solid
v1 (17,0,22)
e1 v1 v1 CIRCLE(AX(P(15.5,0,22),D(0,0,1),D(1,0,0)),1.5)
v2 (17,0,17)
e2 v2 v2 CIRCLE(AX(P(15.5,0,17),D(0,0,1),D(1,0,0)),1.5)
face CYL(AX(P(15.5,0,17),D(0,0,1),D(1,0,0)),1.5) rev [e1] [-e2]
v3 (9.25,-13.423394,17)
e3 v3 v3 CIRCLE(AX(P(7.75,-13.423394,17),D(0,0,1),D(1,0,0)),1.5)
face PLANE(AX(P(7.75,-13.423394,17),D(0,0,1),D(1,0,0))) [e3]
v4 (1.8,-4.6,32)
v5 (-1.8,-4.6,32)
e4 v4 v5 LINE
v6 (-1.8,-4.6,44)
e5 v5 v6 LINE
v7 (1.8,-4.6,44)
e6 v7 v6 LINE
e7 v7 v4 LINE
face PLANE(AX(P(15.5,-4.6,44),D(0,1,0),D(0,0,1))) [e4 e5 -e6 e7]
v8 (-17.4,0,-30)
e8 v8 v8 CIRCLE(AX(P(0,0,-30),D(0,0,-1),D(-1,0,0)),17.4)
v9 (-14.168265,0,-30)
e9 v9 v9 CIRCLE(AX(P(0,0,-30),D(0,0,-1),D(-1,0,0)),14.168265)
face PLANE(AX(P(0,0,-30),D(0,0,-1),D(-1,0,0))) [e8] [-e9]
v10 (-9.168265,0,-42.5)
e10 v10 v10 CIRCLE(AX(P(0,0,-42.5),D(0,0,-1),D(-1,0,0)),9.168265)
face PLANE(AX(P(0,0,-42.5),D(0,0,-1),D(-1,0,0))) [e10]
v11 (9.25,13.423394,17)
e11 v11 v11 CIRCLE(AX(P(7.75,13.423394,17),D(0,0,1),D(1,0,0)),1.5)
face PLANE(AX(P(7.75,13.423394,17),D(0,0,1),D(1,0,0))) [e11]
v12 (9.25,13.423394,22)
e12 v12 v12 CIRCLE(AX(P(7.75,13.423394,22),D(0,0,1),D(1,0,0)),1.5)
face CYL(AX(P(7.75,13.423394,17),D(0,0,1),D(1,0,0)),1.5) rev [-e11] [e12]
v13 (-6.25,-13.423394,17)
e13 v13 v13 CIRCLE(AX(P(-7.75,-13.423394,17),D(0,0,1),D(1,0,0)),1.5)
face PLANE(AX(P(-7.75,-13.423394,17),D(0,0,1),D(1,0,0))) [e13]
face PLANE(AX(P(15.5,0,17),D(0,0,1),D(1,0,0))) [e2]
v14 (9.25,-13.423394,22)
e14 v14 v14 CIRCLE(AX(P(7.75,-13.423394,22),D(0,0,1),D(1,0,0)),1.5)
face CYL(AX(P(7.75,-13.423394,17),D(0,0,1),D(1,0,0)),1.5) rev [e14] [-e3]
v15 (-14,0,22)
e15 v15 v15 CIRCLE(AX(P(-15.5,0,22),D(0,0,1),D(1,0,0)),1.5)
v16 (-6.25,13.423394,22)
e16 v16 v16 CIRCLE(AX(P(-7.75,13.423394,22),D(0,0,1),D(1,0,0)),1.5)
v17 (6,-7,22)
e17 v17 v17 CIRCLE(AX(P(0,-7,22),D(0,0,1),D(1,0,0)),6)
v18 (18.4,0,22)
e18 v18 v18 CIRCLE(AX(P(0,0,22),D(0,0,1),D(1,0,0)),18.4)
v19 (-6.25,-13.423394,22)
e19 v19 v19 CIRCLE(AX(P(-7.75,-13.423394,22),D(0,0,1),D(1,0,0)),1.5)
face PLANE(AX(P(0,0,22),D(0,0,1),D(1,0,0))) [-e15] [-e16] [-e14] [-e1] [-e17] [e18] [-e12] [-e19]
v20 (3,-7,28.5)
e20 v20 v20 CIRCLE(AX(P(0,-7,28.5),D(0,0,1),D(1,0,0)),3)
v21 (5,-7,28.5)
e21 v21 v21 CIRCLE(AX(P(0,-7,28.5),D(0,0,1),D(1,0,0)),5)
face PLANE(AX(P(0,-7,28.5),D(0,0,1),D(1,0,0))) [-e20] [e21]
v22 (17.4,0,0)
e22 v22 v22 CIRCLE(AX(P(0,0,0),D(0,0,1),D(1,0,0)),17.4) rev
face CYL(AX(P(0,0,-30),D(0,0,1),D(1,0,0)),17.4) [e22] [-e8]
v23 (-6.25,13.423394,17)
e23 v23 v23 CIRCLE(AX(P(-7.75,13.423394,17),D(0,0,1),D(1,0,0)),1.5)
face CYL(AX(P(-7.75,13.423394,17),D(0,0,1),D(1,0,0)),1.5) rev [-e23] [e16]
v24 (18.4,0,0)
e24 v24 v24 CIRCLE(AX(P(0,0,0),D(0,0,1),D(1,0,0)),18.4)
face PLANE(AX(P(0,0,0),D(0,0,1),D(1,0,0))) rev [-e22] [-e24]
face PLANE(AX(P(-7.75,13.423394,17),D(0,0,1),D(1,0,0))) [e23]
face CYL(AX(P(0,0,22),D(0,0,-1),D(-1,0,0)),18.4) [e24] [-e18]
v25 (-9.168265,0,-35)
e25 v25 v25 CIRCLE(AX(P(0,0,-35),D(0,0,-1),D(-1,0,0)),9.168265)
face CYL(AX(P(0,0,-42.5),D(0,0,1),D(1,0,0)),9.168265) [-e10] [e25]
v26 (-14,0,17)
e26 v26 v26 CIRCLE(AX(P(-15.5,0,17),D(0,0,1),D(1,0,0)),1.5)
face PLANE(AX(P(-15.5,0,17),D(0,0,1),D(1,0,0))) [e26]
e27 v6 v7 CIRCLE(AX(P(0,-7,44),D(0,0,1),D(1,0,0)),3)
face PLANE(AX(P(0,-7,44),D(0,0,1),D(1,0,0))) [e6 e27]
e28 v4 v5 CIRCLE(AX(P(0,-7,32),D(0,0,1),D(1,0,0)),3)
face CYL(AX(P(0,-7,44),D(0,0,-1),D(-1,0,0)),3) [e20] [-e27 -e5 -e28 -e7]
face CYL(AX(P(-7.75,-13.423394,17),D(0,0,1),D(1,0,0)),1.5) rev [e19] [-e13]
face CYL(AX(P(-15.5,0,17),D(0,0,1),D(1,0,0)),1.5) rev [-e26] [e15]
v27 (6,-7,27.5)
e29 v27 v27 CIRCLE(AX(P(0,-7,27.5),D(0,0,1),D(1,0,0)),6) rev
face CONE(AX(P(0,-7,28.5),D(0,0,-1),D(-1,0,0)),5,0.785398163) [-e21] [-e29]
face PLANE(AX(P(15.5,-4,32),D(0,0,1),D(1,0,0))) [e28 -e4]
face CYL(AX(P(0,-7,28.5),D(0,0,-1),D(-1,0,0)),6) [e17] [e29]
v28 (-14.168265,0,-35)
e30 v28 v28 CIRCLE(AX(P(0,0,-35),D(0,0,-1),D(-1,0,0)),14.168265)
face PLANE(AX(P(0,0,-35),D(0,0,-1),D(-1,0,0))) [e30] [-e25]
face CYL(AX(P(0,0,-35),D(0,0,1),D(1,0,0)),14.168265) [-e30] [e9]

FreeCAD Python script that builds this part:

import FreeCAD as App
import Part
import Sketcher
Q = App.Units.Quantity


def edges_at(feature, points):
    """Names of the edges that pass closest to the given points."""
    edges = feature.Shape.Edges
    near = lambda p: min(range(len(edges)), key=lambda i: edges[i].distToShape(Part.Vertex(*p))[0])
    return sorted({f"Edge{near(p) + 1}" for p in points})


def add_polygon(sketch, points):
    """Adds a closed chain of lines whose ends are joined by coincident constraints."""
    first, n = sketch.GeometryCount, len(points)
    for a, b in zip(points, points[1:] + points[:1]):
        sketch.addGeometry(Part.LineSegment(App.Vector(*a, 0), App.Vector(*b, 0)), False)
    for i in range(n):
        sketch.addConstraint(Sketcher.Constraint("Coincident", first + i, 2, first + (i + 1) % n, 1))

doc = App.newDocument("Part")
body = doc.addObject("PartDesign::Body", "Body")

sketch1 = body.newObject("Sketcher::SketchObject", "Sketch")
sketch1.AttachmentSupport = (doc.getObject("XY_Plane"), [""])
sketch1.MapMode = "FlatFace"
sketch1.addGeometry(Part.Circle(App.Vector(0, 0, 0), App.Vector(0, 0, 1), 18), False)
sketch1.addConstraint([
    Sketcher.Constraint("Coincident", 0, 3, -1, 1),
    Sketcher.Constraint("Diameter", 0, Q("36.8 mm")),
])
pad1 = body.newObject("PartDesign::Pad", "Pad")
pad1.Profile = sketch1
pad1.Length = 22

sketch2 = body.newObject("Sketcher::SketchObject", "Sketch001")
sketch2.AttachmentSupport = (doc.getObject("XY_Plane"), [""])
sketch2.MapMode = "FlatFace"
sketch2.addGeometry(Part.Circle(App.Vector(0, 0, 0), App.Vector(0, 0, 1), 17), False)
sketch2.addConstraint([
    Sketcher.Constraint("Coincident", 0, 3, -1, 1),
    Sketcher.Constraint("Diameter", 0, Q("34.8 mm")),
])
pad2 = body.newObject("PartDesign::Pad", "Pad001")
pad2.Profile = sketch2
pad2.Length = 30
pad2.Reversed = True

sketch3 = body.newObject("Sketcher::SketchObject", "Sketch002")
sketch3.AttachmentSupport = (doc.getObject("XY_Plane"), [""])
sketch3.MapMode = "FlatFace"
sketch3.AttachmentOffset = App.Placement(App.Vector(0, 0, 22), App.Rotation())
sketch3.addGeometry(Part.Circle(App.Vector(0, -7, 0), App.Vector(0, 0, 1), 6), False)
sketch3.addConstraint([
    Sketcher.Constraint("PointOnObject", 0, 3, -2),
    Sketcher.Constraint("Diameter", 0, Q("12 mm")),
    Sketcher.Constraint("DistanceY", 0, 3, -1, 1, Q("7 mm")),
])
pad3 = body.newObject("PartDesign::Pad", "Pad002")
pad3.Profile = sketch3
pad3.Length = 6.5
doc.recompute()

chamfer = body.newObject("PartDesign::Chamfer", "Chamfer")
chamfer.Base = (pad3, edges_at(pad3, [(-6, -7, 28.5)]))
chamfer.Size = 1

sketch4 = body.newObject("Sketcher::SketchObject", "Sketch003")
sketch4.AttachmentSupport = (doc.getObject("XY_Plane"), [""])
sketch4.MapMode = "FlatFace"
sketch4.AttachmentOffset = App.Placement(App.Vector(0, 0, 28.5), App.Rotation())
sketch4.addGeometry(Part.Circle(App.Vector(0, -7, 0), App.Vector(0, 0, 1), 3), False)
sketch4.addConstraint([
    Sketcher.Constraint("PointOnObject", 0, 3, -2),
    Sketcher.Constraint("Diameter", 0, Q("6 mm")),
    Sketcher.Constraint("DistanceY", 0, 3, -1, 1, Q("7 mm")),
])
pad4 = body.newObject("PartDesign::Pad", "Pad003")
pad4.Profile = sketch4
pad4.Length = 15.5

sketch5 = body.newObject("Sketcher::SketchObject", "Sketch004")
sketch5.AttachmentSupport = (doc.getObject("YZ_Plane"), [""])
sketch5.MapMode = "FlatFace"
add_polygon(sketch5, [(-4, 44), (-4.6, 44), (-4.6, 32), (-4, 32)])
sketch5.addConstraint([
    Sketcher.Constraint("Horizontal", 0),
    Sketcher.Constraint("Vertical", 1),
    Sketcher.Constraint("Horizontal", 2),
    Sketcher.Constraint("Vertical", 3),
    Sketcher.Constraint("DistanceY", 1, 2, 1, 1, Q("12 mm")),
    Sketcher.Constraint("DistanceX", 0, 2, 0, 1, Q("0.6 mm")),
    Sketcher.Constraint("DistanceY", -1, 1, 0, 2, Q("44 mm")),
    Sketcher.Constraint("DistanceX", 2, 2, -1, 1, Q("4 mm")),
])
pocket1 = body.newObject("PartDesign::Pocket", "Pocket")
pocket1.Profile = sketch5
pocket1.Type = "ThroughAll"
pocket1.Midplane = True

sketch6 = body.newObject("Sketcher::SketchObject", "Sketch005")
sketch6.AttachmentSupport = (doc.getObject("XY_Plane"), [""])
sketch6.MapMode = "FlatFace"
sketch6.AttachmentOffset = App.Placement(App.Vector(0, 0, 22), App.Rotation())
sketch6.addGeometry([
    Part.Circle(App.Vector(-7.8, 13.4, 0), App.Vector(0, 0, 1), 1.5),
    Part.Circle(App.Vector(7.8, 13.4, 0), App.Vector(0, 0, 1), 1.5),
    Part.Circle(App.Vector(15.5, 0, 0), App.Vector(0, 0, 1), 1.5),
    Part.Circle(App.Vector(-15.5, 0, 0), App.Vector(0, 0, 1), 1.5),
    Part.Circle(App.Vector(-7.8, -13.4, 0), App.Vector(0, 0, 1), 1.5),
    Part.Circle(App.Vector(7.8, -13.4, 0), App.Vector(0, 0, 1), 1.5),
], False)
sketch6.addConstraint([
    Sketcher.Constraint("Equal", 0, 1),
    Sketcher.Constraint("Equal", 1, 2),
    Sketcher.Constraint("Equal", 2, 3),
    Sketcher.Constraint("Equal", 3, 4),
    Sketcher.Constraint("Equal", 4, 5),
    Sketcher.Constraint("Symmetric", 2, 3, 3, 3, -1, 1),
    Sketcher.Constraint("Symmetric", 1, 3, 4, 3, -1, 1),
    Sketcher.Constraint("Symmetric", 0, 3, 5, 3, -1, 1),
    Sketcher.Constraint("Symmetric", 0, 3, 1, 3, -2),
    Sketcher.Constraint("PointOnObject", 2, 3, -1),
    Sketcher.Constraint("Diameter", 0, Q("3 mm")),
    Sketcher.Constraint("DistanceX", 3, 3, 2, 3, Q("31 mm")),
    Sketcher.Constraint("DistanceX", 0, 3, 1, 3, Q("15.5 mm")),
    Sketcher.Constraint("DistanceY", -1, 1, 0, 3, Q("13.423394 mm")),
])
pocket2 = body.newObject("PartDesign::Pocket", "Pocket001")
pocket2.Profile = sketch6
pocket2.Length = 5

sketch7 = body.newObject("Sketcher::SketchObject", "Sketch006")
sketch7.AttachmentSupport = (doc.getObject("XY_Plane"), [""])
sketch7.MapMode = "FlatFace"
sketch7.AttachmentOffset = App.Placement(App.Vector(0, 0, -30), App.Rotation())
sketch7.addGeometry(Part.Circle(App.Vector(0, 0, 0), App.Vector(0, 0, 1), 9), False)
sketch7.addConstraint([
    Sketcher.Constraint("Coincident", 0, 3, -1, 1),
    Sketcher.Constraint("Diameter", 0, Q("18.33653 mm")),
])
pad5 = body.newObject("PartDesign::Pad", "Pad004")
pad5.Profile = sketch7
pad5.Length = 12.5
pad5.Reversed = True

sketch8 = body.newObject("Sketcher::SketchObject", "Sketch007")
sketch8.AttachmentSupport = (doc.getObject("XY_Plane"), [""])
sketch8.MapMode = "FlatFace"
sketch8.AttachmentOffset = App.Placement(App.Vector(0, 0, -30), App.Rotation())
sketch8.addGeometry(Part.Circle(App.Vector(0, 0, 0), App.Vector(0, 0, 1), 14), False)
sketch8.addConstraint([
    Sketcher.Constraint("Coincident", 0, 3, -1, 1),
    Sketcher.Constraint("Diameter", 0, Q("28.33653 mm")),
])
pad6 = body.newObject("PartDesign::Pad", "Pad005")
pad6.Profile = sketch8
pad6.Length = 5
pad6.Reversed = True

doc.recompute()
